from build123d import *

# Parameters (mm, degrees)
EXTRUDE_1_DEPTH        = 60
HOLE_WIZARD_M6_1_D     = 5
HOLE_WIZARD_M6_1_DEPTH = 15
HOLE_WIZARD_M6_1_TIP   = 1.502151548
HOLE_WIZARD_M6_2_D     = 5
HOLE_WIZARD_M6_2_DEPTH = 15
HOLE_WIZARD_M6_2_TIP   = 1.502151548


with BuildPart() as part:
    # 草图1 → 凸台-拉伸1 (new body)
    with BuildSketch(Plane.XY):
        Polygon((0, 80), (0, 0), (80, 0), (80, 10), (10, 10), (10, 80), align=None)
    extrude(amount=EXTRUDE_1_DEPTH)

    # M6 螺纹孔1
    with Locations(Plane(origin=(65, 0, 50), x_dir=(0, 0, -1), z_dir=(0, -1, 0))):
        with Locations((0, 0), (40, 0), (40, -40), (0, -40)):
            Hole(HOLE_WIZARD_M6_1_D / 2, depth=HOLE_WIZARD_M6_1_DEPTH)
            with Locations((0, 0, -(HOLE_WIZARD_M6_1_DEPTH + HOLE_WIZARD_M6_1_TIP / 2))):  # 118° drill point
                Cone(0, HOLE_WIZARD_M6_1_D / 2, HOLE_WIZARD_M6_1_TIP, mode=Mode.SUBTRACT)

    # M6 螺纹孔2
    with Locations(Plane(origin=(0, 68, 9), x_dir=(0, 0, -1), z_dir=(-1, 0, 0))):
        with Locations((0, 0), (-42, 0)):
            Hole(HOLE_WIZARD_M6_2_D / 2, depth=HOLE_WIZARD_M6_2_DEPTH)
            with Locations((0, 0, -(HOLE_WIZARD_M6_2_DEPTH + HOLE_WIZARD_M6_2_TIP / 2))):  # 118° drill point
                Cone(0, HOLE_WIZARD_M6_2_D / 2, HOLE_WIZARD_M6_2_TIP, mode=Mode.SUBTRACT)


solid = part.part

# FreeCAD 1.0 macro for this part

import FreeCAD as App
import Part
import Sketcher

doc = App.newDocument("Part")
body = doc.addObject("PartDesign::Body", "Body")

sketch1 = doc.addObject("Sketcher::SketchObject", "Sketch")
body.addObject(sketch1)
sketch1.AttachmentSupport = (doc.XY_Plane, [""])
sketch1.MapMode = "FlatFace"
sketch1.addGeometry([
    Part.LineSegment(App.Vector(0, 80, 0), App.Vector(0, 0, 0)),
    Part.LineSegment(App.Vector(0, 0, 0), App.Vector(80, 0, 0)),
    Part.LineSegment(App.Vector(80, 0, 0), App.Vector(80, 10, 0)),
    Part.LineSegment(App.Vector(80, 10, 0), App.Vector(10, 10, 0)),
    Part.LineSegment(App.Vector(10, 10, 0), App.Vector(10, 80, 0)),
    Part.LineSegment(App.Vector(10, 80, 0), App.Vector(0, 80, 0)),
], False)
sketch1.addConstraint([
    Sketcher.Constraint("Coincident", 0, 2, 1, 1),
    Sketcher.Constraint("Coincident", 1, 2, 2, 1),
    Sketcher.Constraint("Coincident", 2, 2, 3, 1),
    Sketcher.Constraint("Coincident", 3, 2, 4, 1),
    Sketcher.Constraint("Coincident", 4, 2, 5, 1),
    Sketcher.Constraint("Coincident", 5, 2, 0, 1),
    Sketcher.Constraint("Vertical", 0),
    Sketcher.Constraint("Horizontal", 1),
    Sketcher.Constraint("Vertical", 2),
    Sketcher.Constraint("Horizontal", 3),
    Sketcher.Constraint("Vertical", 4),
    Sketcher.Constraint("Horizontal", 5),
    Sketcher.Constraint("Coincident", 0, 2, -1, 1),
    Sketcher.Constraint("Equal", 1, 0),
    Sketcher.Constraint("Equal", 5, 2),
    Sketcher.Constraint("DistanceX", 1, 1, 1, 2, 80.0),
    Sketcher.Constraint("DistanceX", 3, 2, 3, 1, 70.0),
])
pad1 = doc.addObject("PartDesign::Pad", "Pad")
body.addObject(pad1)
pad1.Profile = sketch1
pad1.Length = 60

sketch2 = doc.addObject("Sketcher::SketchObject", "Sketch001")
body.addObject(sketch2)
sketch2.AttachmentSupport = (doc.XZ_Plane, [""])
sketch2.MapMode = "FlatFace"
sketch2.addGeometry([
    Part.Circle(App.Vector(65, 50, 0), App.Vector(0, 0, 1), 2.5),
    Part.Circle(App.Vector(65, 10, 0), App.Vector(0, 0, 1), 2.5),
    Part.Circle(App.Vector(25, 10, 0), App.Vector(0, 0, 1), 2.5),
    Part.Circle(App.Vector(25, 50, 0), App.Vector(0, 0, 1), 2.5),
], False)
sketch2.addConstraint([
    Sketcher.Constraint("Equal", 0, 1),
    Sketcher.Constraint("Equal", 1, 2),
    Sketcher.Constraint("Equal", 2, 3),
    Sketcher.Constraint("Horizontal", 1, 3, 2, 3),
    Sketcher.Constraint("Horizontal", 0, 3, 3, 3),
    Sketcher.Constraint("Vertical", 0, 3, 1, 3),
    Sketcher.Constraint("Vertical", 2, 3, 3, 3),
    Sketcher.Constraint("Diameter", 0, 5.0),
    Sketcher.Constraint("DistanceX", -1, 1, 0, 3, 65.0),
    Sketcher.Constraint("DistanceY", -1, 1, 0, 3, 50.0),
    Sketcher.Constraint("DistanceY", -1, 1, 1, 3, 10.0),
    Sketcher.Constraint("DistanceX", -1, 1, 2, 3, 25.0),
])
doc.recompute()
hole = doc.addObject("PartDesign::Hole", "Hole")
body.addObject(hole)
hole.Profile = sketch2
hole.ThreadType = "None"
hole.Diameter = 5
hole.DepthType = "Dimension"
hole.Depth = 15
hole.DrillPoint = "Angled"
hole.DrillPointAngle = 118

sketch3 = doc.addObject("Sketcher::SketchObject", "Sketch002")
body.addObject(sketch3)
sketch3.AttachmentSupport = (doc.YZ_Plane, [""])
sketch3.MapMode = "FlatFace"
sketch3.addGeometry([
    Part.Circle(App.Vector(68, 9, 0), App.Vector(0, 0, 1), 2.5),
    Part.Circle(App.Vector(68, 51, 0), App.Vector(0, 0, 1), 2.5),
], False)
sketch3.addConstraint([
    Sketcher.Constraint("Equal", 0, 1),
    Sketcher.Constraint("Vertical", 0, 3, 1, 3),
    Sketcher.Constraint("Diameter", 0, 5.0),
    Sketcher.Constraint("DistanceX", -1, 1, 0, 3, 68.0),
    Sketcher.Constraint("DistanceY", -1, 1, 0, 3, 9.0),
    Sketcher.Constraint("DistanceY", -1, 1, 1, 3, 51.0),
])
doc.recompute()
hole2 = doc.addObject("PartDesign::Hole", "Hole001")
body.addObject(hole2)
hole2.Profile = sketch3
hole2.ThreadType = "None"
hole2.Diameter = 5
hole2.DepthType = "Dimension"
hole2.Depth = 15
hole2.DrillPoint = "Angled"
hole2.DrillPointAngle = 118
hole2.Reversed = True

doc.recompute()
